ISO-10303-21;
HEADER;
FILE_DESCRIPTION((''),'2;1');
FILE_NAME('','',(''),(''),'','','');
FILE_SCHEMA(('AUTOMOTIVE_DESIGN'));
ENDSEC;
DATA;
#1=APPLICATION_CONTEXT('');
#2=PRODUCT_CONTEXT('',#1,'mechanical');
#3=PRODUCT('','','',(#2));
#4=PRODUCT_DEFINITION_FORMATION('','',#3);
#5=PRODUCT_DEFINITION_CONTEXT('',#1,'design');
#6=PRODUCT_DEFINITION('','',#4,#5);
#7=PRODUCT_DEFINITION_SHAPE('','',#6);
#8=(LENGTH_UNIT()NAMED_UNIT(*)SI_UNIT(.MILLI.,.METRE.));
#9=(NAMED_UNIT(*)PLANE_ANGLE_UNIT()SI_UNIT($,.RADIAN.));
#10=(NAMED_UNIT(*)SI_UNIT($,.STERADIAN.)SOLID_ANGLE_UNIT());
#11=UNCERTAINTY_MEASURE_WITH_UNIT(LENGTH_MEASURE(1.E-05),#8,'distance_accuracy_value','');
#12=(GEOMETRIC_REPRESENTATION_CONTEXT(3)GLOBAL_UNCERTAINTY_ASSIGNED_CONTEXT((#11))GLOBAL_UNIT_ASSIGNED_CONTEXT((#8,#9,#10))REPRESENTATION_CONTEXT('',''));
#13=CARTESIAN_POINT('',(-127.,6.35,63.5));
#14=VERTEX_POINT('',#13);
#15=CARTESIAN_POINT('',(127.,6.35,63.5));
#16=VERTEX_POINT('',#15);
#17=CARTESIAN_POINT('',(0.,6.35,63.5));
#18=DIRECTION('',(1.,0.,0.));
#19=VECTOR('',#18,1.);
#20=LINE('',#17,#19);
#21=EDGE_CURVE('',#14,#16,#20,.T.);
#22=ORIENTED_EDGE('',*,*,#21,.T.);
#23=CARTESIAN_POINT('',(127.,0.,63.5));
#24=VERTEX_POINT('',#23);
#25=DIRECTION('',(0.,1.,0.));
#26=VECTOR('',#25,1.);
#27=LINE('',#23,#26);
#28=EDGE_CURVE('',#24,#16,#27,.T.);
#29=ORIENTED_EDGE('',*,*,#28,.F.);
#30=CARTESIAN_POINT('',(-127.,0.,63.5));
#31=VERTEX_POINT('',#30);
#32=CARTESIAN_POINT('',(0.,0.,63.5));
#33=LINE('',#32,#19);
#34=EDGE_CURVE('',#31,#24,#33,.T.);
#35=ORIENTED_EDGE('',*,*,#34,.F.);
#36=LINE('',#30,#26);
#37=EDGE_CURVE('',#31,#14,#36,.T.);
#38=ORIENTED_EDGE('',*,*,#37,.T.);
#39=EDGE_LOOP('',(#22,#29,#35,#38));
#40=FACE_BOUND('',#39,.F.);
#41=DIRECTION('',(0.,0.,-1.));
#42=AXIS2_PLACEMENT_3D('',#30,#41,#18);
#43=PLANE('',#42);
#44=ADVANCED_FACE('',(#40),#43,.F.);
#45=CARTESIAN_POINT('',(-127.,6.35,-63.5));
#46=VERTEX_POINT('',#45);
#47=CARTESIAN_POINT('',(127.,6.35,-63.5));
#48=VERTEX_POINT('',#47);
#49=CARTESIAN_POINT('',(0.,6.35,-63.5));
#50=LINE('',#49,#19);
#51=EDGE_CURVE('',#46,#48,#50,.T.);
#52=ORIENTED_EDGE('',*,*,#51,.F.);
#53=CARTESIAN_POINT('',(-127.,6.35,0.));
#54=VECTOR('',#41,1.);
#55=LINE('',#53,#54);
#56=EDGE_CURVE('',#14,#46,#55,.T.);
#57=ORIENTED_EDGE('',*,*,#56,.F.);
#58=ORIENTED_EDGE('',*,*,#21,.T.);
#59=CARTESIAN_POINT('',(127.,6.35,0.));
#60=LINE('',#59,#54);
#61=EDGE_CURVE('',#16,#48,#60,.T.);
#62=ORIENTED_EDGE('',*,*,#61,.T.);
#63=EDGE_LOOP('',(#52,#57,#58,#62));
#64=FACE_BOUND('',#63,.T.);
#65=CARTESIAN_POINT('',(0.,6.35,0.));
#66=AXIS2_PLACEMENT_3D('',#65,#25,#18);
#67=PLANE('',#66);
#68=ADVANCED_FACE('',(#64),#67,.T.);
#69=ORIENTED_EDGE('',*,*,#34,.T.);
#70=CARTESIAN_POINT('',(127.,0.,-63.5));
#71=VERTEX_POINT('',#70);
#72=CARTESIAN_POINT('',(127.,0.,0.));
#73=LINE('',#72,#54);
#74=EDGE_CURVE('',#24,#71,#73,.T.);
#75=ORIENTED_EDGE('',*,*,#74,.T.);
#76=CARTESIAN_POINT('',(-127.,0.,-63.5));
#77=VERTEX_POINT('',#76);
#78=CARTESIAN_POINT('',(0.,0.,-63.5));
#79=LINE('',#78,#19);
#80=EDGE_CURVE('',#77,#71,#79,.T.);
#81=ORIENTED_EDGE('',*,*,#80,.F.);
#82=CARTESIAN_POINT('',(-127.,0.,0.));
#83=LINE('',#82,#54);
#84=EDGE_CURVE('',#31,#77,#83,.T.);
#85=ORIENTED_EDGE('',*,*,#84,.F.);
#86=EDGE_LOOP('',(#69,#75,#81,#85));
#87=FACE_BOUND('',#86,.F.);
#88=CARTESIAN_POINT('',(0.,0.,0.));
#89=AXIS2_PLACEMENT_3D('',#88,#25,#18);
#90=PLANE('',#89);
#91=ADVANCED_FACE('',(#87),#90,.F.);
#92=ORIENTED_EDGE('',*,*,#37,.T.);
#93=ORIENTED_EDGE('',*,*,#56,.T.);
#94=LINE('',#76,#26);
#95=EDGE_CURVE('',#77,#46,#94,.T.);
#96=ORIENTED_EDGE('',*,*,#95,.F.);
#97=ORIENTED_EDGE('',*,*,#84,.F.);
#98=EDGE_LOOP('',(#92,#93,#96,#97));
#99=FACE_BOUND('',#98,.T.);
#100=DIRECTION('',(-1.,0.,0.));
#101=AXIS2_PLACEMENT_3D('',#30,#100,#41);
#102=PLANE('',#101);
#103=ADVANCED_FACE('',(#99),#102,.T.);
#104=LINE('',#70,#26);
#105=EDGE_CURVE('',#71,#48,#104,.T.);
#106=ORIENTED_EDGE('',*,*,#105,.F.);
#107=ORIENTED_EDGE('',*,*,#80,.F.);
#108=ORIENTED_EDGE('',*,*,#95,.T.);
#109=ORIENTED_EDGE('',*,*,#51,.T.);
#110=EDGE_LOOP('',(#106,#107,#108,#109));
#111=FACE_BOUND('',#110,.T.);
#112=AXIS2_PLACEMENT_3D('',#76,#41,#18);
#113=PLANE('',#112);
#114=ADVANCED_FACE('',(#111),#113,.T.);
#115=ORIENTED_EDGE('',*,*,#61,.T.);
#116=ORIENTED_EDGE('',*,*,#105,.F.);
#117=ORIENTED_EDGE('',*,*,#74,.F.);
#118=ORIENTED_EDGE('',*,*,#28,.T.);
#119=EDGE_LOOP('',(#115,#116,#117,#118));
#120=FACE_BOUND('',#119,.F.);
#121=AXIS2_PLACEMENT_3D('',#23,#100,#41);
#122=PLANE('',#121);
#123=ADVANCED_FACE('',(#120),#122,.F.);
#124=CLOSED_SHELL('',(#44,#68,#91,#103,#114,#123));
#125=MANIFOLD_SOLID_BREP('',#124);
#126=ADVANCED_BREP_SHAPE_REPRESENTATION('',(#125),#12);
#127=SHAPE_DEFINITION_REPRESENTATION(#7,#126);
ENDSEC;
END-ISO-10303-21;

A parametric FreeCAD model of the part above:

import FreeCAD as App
import Part
import Sketcher
Q = App.Units.Quantity

doc = App.newDocument("Part")
body = doc.addObject("PartDesign::Body", "Body")

sketch1 = doc.addObject("Sketcher::SketchObject", "Sketch")
body.addObject(sketch1)
sketch1.AttachmentSupport = (doc.XZ_Plane, [""])
sketch1.MapMode = "FlatFace"
sketch1.addGeometry(Part.LineSegment(App.Vector(-127, -64, 0), App.Vector(-127, 64, 0)), False)
sketch1.addGeometry(Part.LineSegment(App.Vector(-127, 64, 0), App.Vector(127, 64, 0)), False)
sketch1.addGeometry(Part.LineSegment(App.Vector(127, 64, 0), App.Vector(127, -64, 0)), False)
sketch1.addGeometry(Part.LineSegment(App.Vector(127, -64, 0), App.Vector(-127, -64, 0)), False)
sketch1.addConstraint(Sketcher.Constraint("Coincident", 0, 2, 1, 1))
sketch1.addConstraint(Sketcher.Constraint("Coincident", 1, 2, 2, 1))
sketch1.addConstraint(Sketcher.Constraint("Coincident", 2, 2, 3, 1))
sketch1.addConstraint(Sketcher.Constraint("Coincident", 3, 2, 0, 1))
sketch1.addConstraint(Sketcher.Constraint("Vertical", 0))
sketch1.addConstraint(Sketcher.Constraint("Horizontal", 1))
sketch1.addConstraint(Sketcher.Constraint("Vertical", 2))
sketch1.addConstraint(Sketcher.Constraint("Horizontal", 3))
sketch1.addConstraint(Sketcher.Constraint("Symmetric", 0, 2, 2, 2, -1, 1))
sketch1.addConstraint(Sketcher.Constraint("DistanceX", 1, 1, 1, 2, Q("10 in")))
sketch1.addConstraint(Sketcher.Constraint("DistanceY", 0, 1, 0, 2, Q("5 in")))
pad1 = doc.addObject("PartDesign::Pad", "Pad")
body.addObject(pad1)
pad1.Profile = sketch1
pad1.Length = Q("0.25 in")
pad1.Reversed = True

doc.recompute()
